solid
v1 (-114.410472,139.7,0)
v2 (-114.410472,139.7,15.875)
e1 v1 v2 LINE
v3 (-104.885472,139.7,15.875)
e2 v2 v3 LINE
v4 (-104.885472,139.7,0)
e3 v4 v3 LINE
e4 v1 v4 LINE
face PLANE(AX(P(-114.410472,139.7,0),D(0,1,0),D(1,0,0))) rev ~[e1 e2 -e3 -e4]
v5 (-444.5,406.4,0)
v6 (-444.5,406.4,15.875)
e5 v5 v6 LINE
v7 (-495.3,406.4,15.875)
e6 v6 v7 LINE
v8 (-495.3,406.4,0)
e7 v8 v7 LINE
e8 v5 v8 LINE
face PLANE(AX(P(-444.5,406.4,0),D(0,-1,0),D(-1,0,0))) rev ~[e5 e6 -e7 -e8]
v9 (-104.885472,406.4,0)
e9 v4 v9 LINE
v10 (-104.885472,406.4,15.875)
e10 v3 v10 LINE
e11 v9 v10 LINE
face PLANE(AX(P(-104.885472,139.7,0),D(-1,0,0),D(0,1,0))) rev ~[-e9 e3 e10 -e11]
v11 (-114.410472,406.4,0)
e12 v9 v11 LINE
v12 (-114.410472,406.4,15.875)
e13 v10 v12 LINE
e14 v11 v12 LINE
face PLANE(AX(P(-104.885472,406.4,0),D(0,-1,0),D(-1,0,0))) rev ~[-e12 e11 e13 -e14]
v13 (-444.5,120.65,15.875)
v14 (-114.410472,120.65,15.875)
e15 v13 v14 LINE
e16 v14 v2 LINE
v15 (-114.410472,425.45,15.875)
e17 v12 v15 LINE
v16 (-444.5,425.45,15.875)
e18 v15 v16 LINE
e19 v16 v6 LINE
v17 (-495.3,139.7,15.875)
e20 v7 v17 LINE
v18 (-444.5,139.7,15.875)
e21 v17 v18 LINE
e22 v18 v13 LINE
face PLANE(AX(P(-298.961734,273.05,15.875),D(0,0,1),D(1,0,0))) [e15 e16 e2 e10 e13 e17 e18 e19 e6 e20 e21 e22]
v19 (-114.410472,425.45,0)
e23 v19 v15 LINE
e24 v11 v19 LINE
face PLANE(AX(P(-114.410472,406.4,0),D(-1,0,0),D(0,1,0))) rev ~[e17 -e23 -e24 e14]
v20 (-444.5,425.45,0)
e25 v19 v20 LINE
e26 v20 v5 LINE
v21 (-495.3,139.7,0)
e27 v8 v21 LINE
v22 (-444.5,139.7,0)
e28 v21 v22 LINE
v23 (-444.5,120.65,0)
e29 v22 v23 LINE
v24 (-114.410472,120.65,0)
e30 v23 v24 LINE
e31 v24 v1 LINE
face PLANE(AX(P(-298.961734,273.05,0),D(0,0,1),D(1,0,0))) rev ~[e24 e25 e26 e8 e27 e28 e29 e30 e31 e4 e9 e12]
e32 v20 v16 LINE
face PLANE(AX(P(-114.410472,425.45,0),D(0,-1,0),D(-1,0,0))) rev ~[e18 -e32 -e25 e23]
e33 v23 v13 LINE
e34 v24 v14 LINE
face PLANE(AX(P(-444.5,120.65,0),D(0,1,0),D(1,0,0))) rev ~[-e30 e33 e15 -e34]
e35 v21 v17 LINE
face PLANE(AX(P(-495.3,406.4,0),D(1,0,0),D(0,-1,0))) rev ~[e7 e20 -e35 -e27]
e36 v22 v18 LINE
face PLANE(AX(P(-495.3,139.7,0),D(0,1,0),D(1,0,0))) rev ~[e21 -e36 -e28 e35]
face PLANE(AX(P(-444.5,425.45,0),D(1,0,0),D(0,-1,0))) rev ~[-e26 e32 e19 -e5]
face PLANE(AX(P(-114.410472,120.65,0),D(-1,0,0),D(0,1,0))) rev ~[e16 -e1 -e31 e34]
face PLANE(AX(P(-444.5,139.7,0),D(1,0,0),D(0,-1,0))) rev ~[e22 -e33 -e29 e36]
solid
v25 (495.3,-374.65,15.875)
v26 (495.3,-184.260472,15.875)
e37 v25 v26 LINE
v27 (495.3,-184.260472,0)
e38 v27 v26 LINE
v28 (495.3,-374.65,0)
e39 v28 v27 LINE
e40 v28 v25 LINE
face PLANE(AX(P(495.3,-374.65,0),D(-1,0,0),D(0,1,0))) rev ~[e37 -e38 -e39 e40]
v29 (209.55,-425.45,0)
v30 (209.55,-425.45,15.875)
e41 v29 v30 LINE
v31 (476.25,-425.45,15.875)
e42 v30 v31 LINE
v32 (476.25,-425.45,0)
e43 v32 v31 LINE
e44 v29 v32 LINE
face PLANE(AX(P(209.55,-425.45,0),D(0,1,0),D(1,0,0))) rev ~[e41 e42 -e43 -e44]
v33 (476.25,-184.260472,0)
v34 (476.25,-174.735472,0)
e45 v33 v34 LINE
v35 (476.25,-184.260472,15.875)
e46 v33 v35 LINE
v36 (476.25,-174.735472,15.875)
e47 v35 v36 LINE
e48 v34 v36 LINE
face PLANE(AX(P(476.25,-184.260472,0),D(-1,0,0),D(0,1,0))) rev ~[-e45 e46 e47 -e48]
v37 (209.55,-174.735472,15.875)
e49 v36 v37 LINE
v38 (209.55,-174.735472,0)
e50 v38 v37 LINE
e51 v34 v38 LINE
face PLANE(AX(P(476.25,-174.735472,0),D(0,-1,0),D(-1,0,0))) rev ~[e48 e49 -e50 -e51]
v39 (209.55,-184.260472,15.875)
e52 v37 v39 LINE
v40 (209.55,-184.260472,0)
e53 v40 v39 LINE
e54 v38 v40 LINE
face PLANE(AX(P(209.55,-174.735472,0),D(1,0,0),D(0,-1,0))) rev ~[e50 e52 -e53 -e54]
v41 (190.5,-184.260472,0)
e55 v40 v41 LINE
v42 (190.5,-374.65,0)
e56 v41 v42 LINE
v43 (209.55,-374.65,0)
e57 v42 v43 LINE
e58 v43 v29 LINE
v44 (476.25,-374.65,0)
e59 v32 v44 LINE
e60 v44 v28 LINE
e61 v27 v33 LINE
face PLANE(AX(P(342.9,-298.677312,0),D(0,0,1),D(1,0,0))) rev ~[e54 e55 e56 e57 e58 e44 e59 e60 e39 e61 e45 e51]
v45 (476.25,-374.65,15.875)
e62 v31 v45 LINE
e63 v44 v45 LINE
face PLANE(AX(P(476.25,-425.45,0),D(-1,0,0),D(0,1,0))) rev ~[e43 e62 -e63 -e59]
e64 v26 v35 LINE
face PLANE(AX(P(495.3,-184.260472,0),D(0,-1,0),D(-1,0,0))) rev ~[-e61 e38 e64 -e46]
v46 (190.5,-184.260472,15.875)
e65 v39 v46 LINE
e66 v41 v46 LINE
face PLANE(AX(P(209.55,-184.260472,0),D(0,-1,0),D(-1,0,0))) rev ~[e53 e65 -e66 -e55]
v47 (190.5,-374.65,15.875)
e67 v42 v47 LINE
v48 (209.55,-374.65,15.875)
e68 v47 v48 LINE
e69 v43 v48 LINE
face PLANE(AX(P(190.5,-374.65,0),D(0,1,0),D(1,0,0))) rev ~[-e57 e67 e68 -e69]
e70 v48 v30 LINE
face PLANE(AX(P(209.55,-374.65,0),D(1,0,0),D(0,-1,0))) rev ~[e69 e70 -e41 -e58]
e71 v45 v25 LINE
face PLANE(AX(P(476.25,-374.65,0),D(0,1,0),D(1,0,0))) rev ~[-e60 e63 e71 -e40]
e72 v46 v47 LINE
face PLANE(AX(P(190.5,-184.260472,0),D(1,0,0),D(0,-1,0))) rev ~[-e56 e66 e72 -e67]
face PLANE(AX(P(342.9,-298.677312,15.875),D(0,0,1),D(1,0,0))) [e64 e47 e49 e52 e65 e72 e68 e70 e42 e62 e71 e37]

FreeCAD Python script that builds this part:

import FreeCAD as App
import Part
import Sketcher

V = App.Vector
Q = App.Units.Quantity

doc = App.newDocument("Part")
body = doc.addObject("PartDesign::Body", "Body")
body.AllowCompound = True

sketch1 = body.newObject("Sketcher::SketchObject", "Sketch")
sketch1.AttachmentSupport = (doc.getObject("XY_Plane"), [""])
sketch1.MapMode = "FlatFace"
sketch1.addGeometry(Part.LineSegment(V(210, -375, 0), V(210, -425, 0)), False)
sketch1.addGeometry(Part.LineSegment(V(210, -425, 0), V(476, -425, 0)), False)
sketch1.addGeometry(Part.LineSegment(V(476, -425, 0), V(476, -375, 0)), False)
sketch1.addGeometry(Part.LineSegment(V(476, -375, 0), V(495, -375, 0)), False)
sketch1.addGeometry(Part.LineSegment(V(495, -375, 0), V(495, -184, 0)), False)
sketch1.addGeometry(Part.LineSegment(V(495, -184, 0), V(476, -184, 0)), False)
sketch1.addGeometry(Part.LineSegment(V(476, -184, 0), V(476, -175, 0)), False)
sketch1.addGeometry(Part.LineSegment(V(476, -175, 0), V(210, -175, 0)), False)
sketch1.addGeometry(Part.LineSegment(V(210, -175, 0), V(210, -184, 0)), False)
sketch1.addGeometry(Part.LineSegment(V(210, -184, 0), V(190, -184, 0)), False)
sketch1.addGeometry(Part.LineSegment(V(190, -184, 0), V(190, -375, 0)), False)
sketch1.addGeometry(Part.LineSegment(V(190, -375, 0), V(210, -375, 0)), False)
sketch1.addGeometry(Part.LineSegment(V(-114, 425, 0), V(-444, 425, 0)), False)
sketch1.addGeometry(Part.LineSegment(V(-444, 425, 0), V(-444, 406, 0)), False)
sketch1.addGeometry(Part.LineSegment(V(-444, 406, 0), V(-495, 406, 0)), False)
sketch1.addGeometry(Part.LineSegment(V(-495, 406, 0), V(-495, 140, 0)), False)
sketch1.addGeometry(Part.LineSegment(V(-495, 140, 0), V(-444, 140, 0)), False)
sketch1.addGeometry(Part.LineSegment(V(-444, 140, 0), V(-444, 121, 0)), False)
sketch1.addGeometry(Part.LineSegment(V(-444, 121, 0), V(-114, 121, 0)), False)
sketch1.addGeometry(Part.LineSegment(V(-114, 121, 0), V(-114, 140, 0)), False)
sketch1.addGeometry(Part.LineSegment(V(-114, 140, 0), V(-105, 140, 0)), False)
sketch1.addGeometry(Part.LineSegment(V(-105, 140, 0), V(-105, 406, 0)), False)
sketch1.addGeometry(Part.LineSegment(V(-105, 406, 0), V(-114, 406, 0)), False)
sketch1.addGeometry(Part.LineSegment(V(-114, 406, 0), V(-114, 425, 0)), False)
sketch1.addConstraint(Sketcher.Constraint("Coincident", 0, 2, 1, 1))
sketch1.addConstraint(Sketcher.Constraint("Coincident", 1, 2, 2, 1))
sketch1.addConstraint(Sketcher.Constraint("Coincident", 2, 2, 3, 1))
sketch1.addConstraint(Sketcher.Constraint("Coincident", 3, 2, 4, 1))
sketch1.addConstraint(Sketcher.Constraint("Coincident", 4, 2, 5, 1))
sketch1.addConstraint(Sketcher.Constraint("Coincident", 5, 2, 6, 1))
sketch1.addConstraint(Sketcher.Constraint("Coincident", 6, 2, 7, 1))
sketch1.addConstraint(Sketcher.Constraint("Coincident", 7, 2, 8, 1))
sketch1.addConstraint(Sketcher.Constraint("Coincident", 8, 2, 9, 1))
sketch1.addConstraint(Sketcher.Constraint("Coincident", 9, 2, 10, 1))
sketch1.addConstraint(Sketcher.Constraint("Coincident", 10, 2, 11, 1))
sketch1.addConstraint(Sketcher.Constraint("Coincident", 11, 2, 0, 1))
sketch1.addConstraint(Sketcher.Constraint("Coincident", 12, 2, 13, 1))
sketch1.addConstraint(Sketcher.Constraint("Coincident", 13, 2, 14, 1))
sketch1.addConstraint(Sketcher.Constraint("Coincident", 14, 2, 15, 1))
sketch1.addConstraint(Sketcher.Constraint("Coincident", 15, 2, 16, 1))
sketch1.addConstraint(Sketcher.Constraint("Coincident", 16, 2, 17, 1))
sketch1.addConstraint(Sketcher.Constraint("Coincident", 17, 2, 18, 1))
sketch1.addConstraint(Sketcher.Constraint("Coincident", 18, 2, 19, 1))
sketch1.addConstraint(Sketcher.Constraint("Coincident", 19, 2, 20, 1))
sketch1.addConstraint(Sketcher.Constraint("Coincident", 20, 2, 21, 1))
sketch1.addConstraint(Sketcher.Constraint("Coincident", 21, 2, 22, 1))
sketch1.addConstraint(Sketcher.Constraint("Coincident", 22, 2, 23, 1))
sketch1.addConstraint(Sketcher.Constraint("Coincident", 23, 2, 12, 1))
sketch1.addConstraint(Sketcher.Constraint("Vertical", 0))
sketch1.addConstraint(Sketcher.Constraint("Horizontal", 1))
sketch1.addConstraint(Sketcher.Constraint("Vertical", 2))
sketch1.addConstraint(Sketcher.Constraint("Horizontal", 3))
sketch1.addConstraint(Sketcher.Constraint("Vertical", 4))
sketch1.addConstraint(Sketcher.Constraint("Horizontal", 5))
sketch1.addConstraint(Sketcher.Constraint("Vertical", 6))
sketch1.addConstraint(Sketcher.Constraint("Horizontal", 7))
sketch1.addConstraint(Sketcher.Constraint("Vertical", 8))
sketch1.addConstraint(Sketcher.Constraint("Horizontal", 9))
sketch1.addConstraint(Sketcher.Constraint("Vertical", 10))
sketch1.addConstraint(Sketcher.Constraint("Horizontal", 11))
sketch1.addConstraint(Sketcher.Constraint("Horizontal", 12))
sketch1.addConstraint(Sketcher.Constraint("Vertical", 13))
sketch1.addConstraint(Sketcher.Constraint("Horizontal", 14))
sketch1.addConstraint(Sketcher.Constraint("Vertical", 15))
sketch1.addConstraint(Sketcher.Constraint("Horizontal", 16))
sketch1.addConstraint(Sketcher.Constraint("Vertical", 17))
sketch1.addConstraint(Sketcher.Constraint("Horizontal", 18))
sketch1.addConstraint(Sketcher.Constraint("Vertical", 19))
sketch1.addConstraint(Sketcher.Constraint("Horizontal", 20))
sketch1.addConstraint(Sketcher.Constraint("Vertical", 21))
sketch1.addConstraint(Sketcher.Constraint("Horizontal", 22))
sketch1.addConstraint(Sketcher.Constraint("Vertical", 23))
sketch1.addConstraint(Sketcher.Constraint("Horizontal", 5, 2, 8, 2))
sketch1.addConstraint(Sketcher.Constraint("Horizontal", 3, 2, 10, 2))
sketch1.addConstraint(Sketcher.Constraint("Horizontal", 16, 2, 19, 2))
sketch1.addConstraint(Sketcher.Constraint("Horizontal", 14, 2, 21, 2))
sketch1.addConstraint(Sketcher.Constraint("Vertical", 2, 2, 5, 2))
sketch1.addConstraint(Sketcher.Constraint("Vertical", 0, 2, 7, 2))
sketch1.addConstraint(Sketcher.Constraint("Vertical", 13, 2, 16, 2))
sketch1.addConstraint(Sketcher.Constraint("Vertical", 19, 2, 22, 2))
sketch1.addConstraint(Sketcher.Constraint("Equal", 5, 9))
sketch1.addConstraint(Sketcher.Constraint("Equal", 16, 0))
sketch1.addConstraint(Sketcher.Constraint("Equal", 22, 6))
sketch1.addConstraint(Sketcher.Constraint("Equal", 11, 13))
sketch1.addConstraint(Sketcher.Constraint("Equal", 7, 15))
sketch1.addConstraint(Sketcher.Constraint("Equal", 13, 17))
sketch1.addConstraint(Sketcher.Constraint("DistanceX", 14, 2, 14, 1, Q("2 in")))
sketch1.addConstraint(Sketcher.Constraint("DistanceX", 1, 1, 1, 2, Q("10.5 in")))
sketch1.addConstraint(Sketcher.Constraint("DistanceY", -1, 1, 13, 2, Q("16 in")))
sketch1.addConstraint(Sketcher.Constraint("DistanceX", 12, 2, 9, 2, Q("25 in")))
sketch1.addConstraint(Sketcher.Constraint("DistanceY", 17, 2, 12, 2, Q("12 in")))
sketch1.addConstraint(Sketcher.Constraint("DistanceX", -1, 1, 3, 2, Q("19.5 in")))
sketch1.addConstraint(Sketcher.Constraint("DistanceY", 10, 2, 12, 2, Q("31.5 in")))
sketch1.addConstraint(Sketcher.Constraint("DistanceX", 20, 1, 20, 2, Q("0.375 in")))
sketch1.addConstraint(Sketcher.Constraint("DistanceX", 12, 2, 12, 1, Q("330.089528 mm")))
sketch1.addConstraint(Sketcher.Constraint("DistanceY", 4, 1, 4, 2, Q("190.389528 mm")))
pad1 = body.newObject("PartDesign::Pad", "Pad")
pad1.Profile = sketch1
pad1.Length = Q("0.625 in")

doc.recompute()
